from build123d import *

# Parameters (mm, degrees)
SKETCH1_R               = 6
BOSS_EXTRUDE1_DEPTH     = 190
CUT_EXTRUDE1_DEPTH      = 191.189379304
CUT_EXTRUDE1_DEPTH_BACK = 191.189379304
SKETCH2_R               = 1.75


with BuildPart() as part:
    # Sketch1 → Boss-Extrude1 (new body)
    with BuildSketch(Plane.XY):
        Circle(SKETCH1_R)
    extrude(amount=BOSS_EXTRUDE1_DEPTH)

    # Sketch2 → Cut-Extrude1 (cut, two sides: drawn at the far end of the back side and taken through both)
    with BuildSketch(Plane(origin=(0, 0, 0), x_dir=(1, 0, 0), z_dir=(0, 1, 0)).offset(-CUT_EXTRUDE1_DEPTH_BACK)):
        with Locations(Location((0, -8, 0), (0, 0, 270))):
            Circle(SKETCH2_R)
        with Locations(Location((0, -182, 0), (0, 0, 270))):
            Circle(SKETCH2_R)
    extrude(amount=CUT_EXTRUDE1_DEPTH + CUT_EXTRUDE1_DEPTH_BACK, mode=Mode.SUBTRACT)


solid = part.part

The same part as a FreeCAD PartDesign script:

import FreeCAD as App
import Part
import Sketcher

V = App.Vector

doc = App.newDocument("Part")
params = doc.addObject("Spreadsheet::Sheet", "Params")
for row, (alias, value) in enumerate([
    ("sketch1_diameter", "12 mm"),
    ("pad1_length", "190 mm"),
    ("sketch2_diameter", "3.5 mm"),
], start=1):
    params.set(f"A{row}", alias)
    params.set(f"B{row}", "=" + value)
    params.setAlias(f"B{row}", alias)

body = doc.addObject("PartDesign::Body", "Body")

sketch1 = doc.addObject("Sketcher::SketchObject", "Sketch")
body.addObject(sketch1)
sketch1.AttachmentSupport = (doc.XY_Plane, [""])
sketch1.MapMode = "FlatFace"
sketch1.addGeometry(Part.Circle(V(0, 0, 0), V(0, 0, 1), 6), False)
sketch1.addConstraint(Sketcher.Constraint("Coincident", 0, 3, -1, 1))
sketch1.addConstraint(Sketcher.Constraint("Diameter", 0, 12.0))
sketch1.setExpression("Constraints[1]", "Params.sketch1_diameter")
pad1 = doc.addObject("PartDesign::Pad", "Pad")
body.addObject(pad1)
pad1.Profile = sketch1
pad1.setExpression("Length", "Params.pad1_length")

sketch2 = doc.addObject("Sketcher::SketchObject", "Sketch001")
body.addObject(sketch2)
sketch2.AttachmentSupport = (doc.XZ_Plane, [""])
sketch2.MapMode = "FlatFace"
sketch2.addGeometry(Part.Circle(V(0, 8, 0), V(0, 0, 1), 1.8), False)
sketch2.addGeometry(Part.Circle(V(0, 182, 0), V(0, 0, 1), 1.8), False)
sketch2.addConstraint(Sketcher.Constraint("Equal", 0, 1))
sketch2.addConstraint(Sketcher.Constraint("PointOnObject", 0, 3, -2))
sketch2.addConstraint(Sketcher.Constraint("PointOnObject", 1, 3, -2))
sketch2.addConstraint(Sketcher.Constraint("Diameter", 0, 3.5))
sketch2.addConstraint(Sketcher.Constraint("DistanceY", -1, 1, 0, 3, 8.0))
sketch2.addConstraint(Sketcher.Constraint("DistanceY", -1, 1, 1, 3, 182.0))
sketch2.setExpression("Constraints[3]", "Params.sketch2_diameter")
pocket1 = doc.addObject("PartDesign::Pocket", "Pocket")
body.addObject(pocket1)
pocket1.Profile = sketch2
pocket1.Type = "ThroughAll"
pocket1.Midplane = True

doc.recompute()
